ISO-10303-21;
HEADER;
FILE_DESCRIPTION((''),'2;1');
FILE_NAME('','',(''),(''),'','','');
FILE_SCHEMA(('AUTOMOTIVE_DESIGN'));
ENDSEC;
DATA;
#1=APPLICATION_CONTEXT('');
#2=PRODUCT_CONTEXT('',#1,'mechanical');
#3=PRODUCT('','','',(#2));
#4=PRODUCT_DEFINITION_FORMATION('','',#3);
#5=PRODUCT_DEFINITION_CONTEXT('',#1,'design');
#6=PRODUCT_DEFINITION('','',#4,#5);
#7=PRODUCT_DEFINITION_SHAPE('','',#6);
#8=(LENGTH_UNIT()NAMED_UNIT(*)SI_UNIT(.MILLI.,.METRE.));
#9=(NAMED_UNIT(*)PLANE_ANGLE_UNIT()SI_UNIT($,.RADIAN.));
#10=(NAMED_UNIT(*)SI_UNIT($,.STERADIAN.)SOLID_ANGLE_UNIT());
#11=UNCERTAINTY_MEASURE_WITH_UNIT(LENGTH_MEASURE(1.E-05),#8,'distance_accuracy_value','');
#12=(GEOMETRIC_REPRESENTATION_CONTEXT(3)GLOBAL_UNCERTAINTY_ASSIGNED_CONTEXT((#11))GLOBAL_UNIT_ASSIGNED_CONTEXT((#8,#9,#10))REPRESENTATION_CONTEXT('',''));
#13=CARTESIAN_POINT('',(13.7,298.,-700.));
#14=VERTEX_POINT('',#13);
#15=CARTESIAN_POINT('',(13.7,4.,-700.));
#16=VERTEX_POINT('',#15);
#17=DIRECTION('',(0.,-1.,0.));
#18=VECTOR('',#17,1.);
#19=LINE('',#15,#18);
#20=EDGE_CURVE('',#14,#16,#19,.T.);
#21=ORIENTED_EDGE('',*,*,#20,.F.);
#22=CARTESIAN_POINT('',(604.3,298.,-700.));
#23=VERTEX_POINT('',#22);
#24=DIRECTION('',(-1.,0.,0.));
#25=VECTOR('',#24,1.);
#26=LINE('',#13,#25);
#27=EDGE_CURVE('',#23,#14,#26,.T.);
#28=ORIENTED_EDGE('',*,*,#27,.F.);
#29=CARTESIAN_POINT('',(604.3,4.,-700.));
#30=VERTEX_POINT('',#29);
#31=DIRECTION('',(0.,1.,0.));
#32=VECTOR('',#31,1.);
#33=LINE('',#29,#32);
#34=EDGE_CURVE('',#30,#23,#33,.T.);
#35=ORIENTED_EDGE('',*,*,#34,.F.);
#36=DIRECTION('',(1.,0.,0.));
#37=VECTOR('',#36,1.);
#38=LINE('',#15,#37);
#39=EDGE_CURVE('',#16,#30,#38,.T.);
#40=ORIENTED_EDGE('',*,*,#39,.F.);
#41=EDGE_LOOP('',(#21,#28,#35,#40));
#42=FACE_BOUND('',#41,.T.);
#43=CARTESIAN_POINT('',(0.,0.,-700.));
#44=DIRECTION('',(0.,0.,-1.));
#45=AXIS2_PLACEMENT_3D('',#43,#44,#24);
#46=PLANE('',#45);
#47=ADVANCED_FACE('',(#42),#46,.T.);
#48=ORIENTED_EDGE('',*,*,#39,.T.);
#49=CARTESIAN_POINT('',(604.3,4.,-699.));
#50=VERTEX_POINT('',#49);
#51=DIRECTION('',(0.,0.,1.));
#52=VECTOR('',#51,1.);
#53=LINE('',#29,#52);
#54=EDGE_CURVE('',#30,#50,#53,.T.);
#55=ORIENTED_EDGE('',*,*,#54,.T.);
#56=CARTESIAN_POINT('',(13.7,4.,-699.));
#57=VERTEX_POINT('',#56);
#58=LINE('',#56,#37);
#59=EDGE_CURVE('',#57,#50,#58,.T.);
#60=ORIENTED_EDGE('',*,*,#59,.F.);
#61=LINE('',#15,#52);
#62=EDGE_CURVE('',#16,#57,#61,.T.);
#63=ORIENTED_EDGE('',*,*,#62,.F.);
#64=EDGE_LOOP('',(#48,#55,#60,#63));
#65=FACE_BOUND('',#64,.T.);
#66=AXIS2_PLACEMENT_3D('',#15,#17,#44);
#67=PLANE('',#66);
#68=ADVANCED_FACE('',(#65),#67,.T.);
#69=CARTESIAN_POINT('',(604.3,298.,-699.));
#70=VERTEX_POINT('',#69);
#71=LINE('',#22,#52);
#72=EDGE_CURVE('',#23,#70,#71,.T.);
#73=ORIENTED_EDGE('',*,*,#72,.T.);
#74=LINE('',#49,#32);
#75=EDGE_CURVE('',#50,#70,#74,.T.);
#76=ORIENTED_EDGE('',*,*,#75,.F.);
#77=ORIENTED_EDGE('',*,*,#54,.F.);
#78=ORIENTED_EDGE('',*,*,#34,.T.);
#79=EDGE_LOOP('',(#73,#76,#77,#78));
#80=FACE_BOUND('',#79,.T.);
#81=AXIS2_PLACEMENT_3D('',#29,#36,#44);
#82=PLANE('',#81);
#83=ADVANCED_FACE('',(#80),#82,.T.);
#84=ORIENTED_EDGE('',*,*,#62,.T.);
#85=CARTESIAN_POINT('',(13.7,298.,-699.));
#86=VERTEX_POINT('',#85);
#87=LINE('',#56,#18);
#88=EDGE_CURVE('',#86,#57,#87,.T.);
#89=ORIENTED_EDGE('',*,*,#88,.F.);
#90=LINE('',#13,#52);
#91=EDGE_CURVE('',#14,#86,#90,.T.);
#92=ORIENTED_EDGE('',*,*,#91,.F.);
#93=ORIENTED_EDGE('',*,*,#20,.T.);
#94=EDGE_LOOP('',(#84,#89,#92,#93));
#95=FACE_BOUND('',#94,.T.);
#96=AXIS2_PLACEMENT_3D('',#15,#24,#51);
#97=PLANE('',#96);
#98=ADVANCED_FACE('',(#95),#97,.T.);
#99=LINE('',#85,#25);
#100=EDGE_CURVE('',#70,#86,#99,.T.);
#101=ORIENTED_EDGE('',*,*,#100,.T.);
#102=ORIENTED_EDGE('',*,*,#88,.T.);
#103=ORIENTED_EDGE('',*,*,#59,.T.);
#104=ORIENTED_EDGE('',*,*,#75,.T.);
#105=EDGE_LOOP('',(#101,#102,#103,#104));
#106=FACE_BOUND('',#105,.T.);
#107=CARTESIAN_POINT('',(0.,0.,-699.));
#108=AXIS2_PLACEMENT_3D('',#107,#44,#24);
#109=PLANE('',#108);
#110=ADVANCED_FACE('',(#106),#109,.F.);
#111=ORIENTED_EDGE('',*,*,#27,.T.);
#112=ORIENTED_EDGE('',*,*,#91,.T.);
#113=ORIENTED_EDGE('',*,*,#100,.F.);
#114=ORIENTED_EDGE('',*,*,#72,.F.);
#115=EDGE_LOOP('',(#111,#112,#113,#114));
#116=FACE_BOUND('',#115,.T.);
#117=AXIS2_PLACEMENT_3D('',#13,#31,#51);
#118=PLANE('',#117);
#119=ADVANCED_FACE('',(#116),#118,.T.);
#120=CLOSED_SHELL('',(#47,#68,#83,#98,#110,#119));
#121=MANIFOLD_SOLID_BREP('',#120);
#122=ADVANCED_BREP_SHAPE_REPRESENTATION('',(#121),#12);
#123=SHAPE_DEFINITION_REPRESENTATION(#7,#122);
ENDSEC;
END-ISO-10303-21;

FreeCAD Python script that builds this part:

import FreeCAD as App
import Part
import Sketcher

V = App.Vector


def add_polygon(sketch, points):
    """Adds a closed chain of lines whose ends are joined by coincident constraints."""
    first, n = sketch.GeometryCount, len(points)
    for a, b in zip(points, points[1:] + points[:1]):
        sketch.addGeometry(Part.LineSegment(App.Vector(*a, 0), App.Vector(*b, 0)), False)
    for i in range(n):
        sketch.addConstraint(Sketcher.Constraint("Coincident", first + i, 2, first + (i + 1) % n, 1))

doc = App.newDocument("Part")
body = doc.addObject("PartDesign::Body", "Body")

# Sketch on XY plane
sketch1 = body.newObject("Sketcher::SketchObject", "Sketch")
sketch1.AttachmentSupport = (doc.getObject("XY_Plane"), [""])
sketch1.MapMode = "FlatFace"
sketch1.AttachmentOffset = App.Placement(V(0, 0, -699), App.Rotation())
add_polygon(sketch1, [(14, 298), (14, 4), (604, 4), (604, 298)])  # lines 0-3
sketch1.addConstraint(Sketcher.Constraint("Vertical", 0))
sketch1.addConstraint(Sketcher.Constraint("Horizontal", 1))
sketch1.addConstraint(Sketcher.Constraint("Vertical", 2))
sketch1.addConstraint(Sketcher.Constraint("Horizontal", 3))
sketch1.addConstraint(Sketcher.Constraint("DistanceY", 0, 2, 0, 1, 294.0))
sketch1.addConstraint(Sketcher.Constraint("DistanceX", 1, 1, 1, 2, 590.6))
sketch1.addConstraint(Sketcher.Constraint("DistanceY", -1, 1, 0, 2, 4.0))
sketch1.addConstraint(Sketcher.Constraint("DistanceX", -1, 1, 0, 2, 13.7))
pad1 = body.newObject("PartDesign::Pad", "Pad")
pad1.Profile = sketch1
pad1.Length = 1
pad1.Reversed = True

doc.recompute()
